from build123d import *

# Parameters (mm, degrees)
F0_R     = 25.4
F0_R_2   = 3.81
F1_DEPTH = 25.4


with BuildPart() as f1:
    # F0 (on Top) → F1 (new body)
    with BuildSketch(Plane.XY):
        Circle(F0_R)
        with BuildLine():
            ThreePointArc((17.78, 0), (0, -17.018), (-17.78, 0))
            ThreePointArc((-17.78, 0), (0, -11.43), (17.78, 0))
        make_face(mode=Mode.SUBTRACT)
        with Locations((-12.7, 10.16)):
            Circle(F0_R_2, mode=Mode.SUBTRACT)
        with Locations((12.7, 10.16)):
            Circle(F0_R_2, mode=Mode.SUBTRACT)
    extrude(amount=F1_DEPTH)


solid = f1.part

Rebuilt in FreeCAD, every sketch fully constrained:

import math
import FreeCAD as App
import Part
import Sketcher
from FreeCAD import Vector
Q = App.Units.Quantity

doc = App.newDocument("Part")
body = doc.addObject("PartDesign::Body", "Body")

# Sketch on XY plane
sketch1 = body.newObject("Sketcher::SketchObject", "Sketch")
sketch1.AttachmentSupport = (doc.getObject("XY_Plane"), [""])
sketch1.MapMode = "FlatFace"
sketch1.addGeometry(Part.Circle(Vector(0, 0, 0), Vector(0, 0, 1), 25.4), False)
sketch1.addGeometry(Part.ArcOfCircle(Part.Circle(Vector(0, 8.1, 0), Vector(0, 0, 1), 19.5), math.radians(-155), math.radians(-25)), False)
sketch1.addGeometry(Part.ArcOfCircle(Part.Circle(Vector(0, 0.8, 0), Vector(0, 0, 1), 17.8), math.radians(-177), math.radians(-3)), False)
sketch1.addGeometry(Part.Circle(Vector(-12.7, 10.2, 0), Vector(0, 0, 1), 3.8), False)
sketch1.addGeometry(Part.Circle(Vector(12.7, 10.2, 0), Vector(0, 0, 1), 3.8), False)
sketch1.addConstraint(Sketcher.Constraint("Coincident", 1, 1, 2, 1))
sketch1.addConstraint(Sketcher.Constraint("Coincident", 2, 2, 1, 2))
sketch1.addConstraint(Sketcher.Constraint("Coincident", 0, 3, -1, 1))
sketch1.addConstraint(Sketcher.Constraint("Equal", 3, 4))
sketch1.addConstraint(Sketcher.Constraint("Symmetric", 1, 1, 2, 2, -1, 1))
sketch1.addConstraint(Sketcher.Constraint("Symmetric", 3, 3, 4, 3, -2))
sketch1.addConstraint(Sketcher.Constraint("PointOnObject", 1, 3, -2))
sketch1.addConstraint(Sketcher.Constraint("Diameter", 0, Q("2 in")))
sketch1.addConstraint(Sketcher.Constraint("Diameter", 3, Q("0.3 in")))
sketch1.addConstraint(Sketcher.Constraint("DistanceX", 3, 3, 4, 3, Q("1 in")))
sketch1.addConstraint(Sketcher.Constraint("DistanceY", -1, 1, 3, 3, Q("0.4 in")))
sketch1.addConstraint(Sketcher.Constraint("DistanceX", 1, 1, -1, 1, Q("0.7 in")))
sketch1.addConstraint(Sketcher.Constraint("Radius", 1, Q("19.543889 mm")))
sketch1.addConstraint(Sketcher.Constraint("Radius", 2, Q("17.79706 mm")))
pad1 = body.newObject("PartDesign::Pad", "Pad")
pad1.Profile = sketch1
pad1.Length = Q("1 in")

doc.recompute()
